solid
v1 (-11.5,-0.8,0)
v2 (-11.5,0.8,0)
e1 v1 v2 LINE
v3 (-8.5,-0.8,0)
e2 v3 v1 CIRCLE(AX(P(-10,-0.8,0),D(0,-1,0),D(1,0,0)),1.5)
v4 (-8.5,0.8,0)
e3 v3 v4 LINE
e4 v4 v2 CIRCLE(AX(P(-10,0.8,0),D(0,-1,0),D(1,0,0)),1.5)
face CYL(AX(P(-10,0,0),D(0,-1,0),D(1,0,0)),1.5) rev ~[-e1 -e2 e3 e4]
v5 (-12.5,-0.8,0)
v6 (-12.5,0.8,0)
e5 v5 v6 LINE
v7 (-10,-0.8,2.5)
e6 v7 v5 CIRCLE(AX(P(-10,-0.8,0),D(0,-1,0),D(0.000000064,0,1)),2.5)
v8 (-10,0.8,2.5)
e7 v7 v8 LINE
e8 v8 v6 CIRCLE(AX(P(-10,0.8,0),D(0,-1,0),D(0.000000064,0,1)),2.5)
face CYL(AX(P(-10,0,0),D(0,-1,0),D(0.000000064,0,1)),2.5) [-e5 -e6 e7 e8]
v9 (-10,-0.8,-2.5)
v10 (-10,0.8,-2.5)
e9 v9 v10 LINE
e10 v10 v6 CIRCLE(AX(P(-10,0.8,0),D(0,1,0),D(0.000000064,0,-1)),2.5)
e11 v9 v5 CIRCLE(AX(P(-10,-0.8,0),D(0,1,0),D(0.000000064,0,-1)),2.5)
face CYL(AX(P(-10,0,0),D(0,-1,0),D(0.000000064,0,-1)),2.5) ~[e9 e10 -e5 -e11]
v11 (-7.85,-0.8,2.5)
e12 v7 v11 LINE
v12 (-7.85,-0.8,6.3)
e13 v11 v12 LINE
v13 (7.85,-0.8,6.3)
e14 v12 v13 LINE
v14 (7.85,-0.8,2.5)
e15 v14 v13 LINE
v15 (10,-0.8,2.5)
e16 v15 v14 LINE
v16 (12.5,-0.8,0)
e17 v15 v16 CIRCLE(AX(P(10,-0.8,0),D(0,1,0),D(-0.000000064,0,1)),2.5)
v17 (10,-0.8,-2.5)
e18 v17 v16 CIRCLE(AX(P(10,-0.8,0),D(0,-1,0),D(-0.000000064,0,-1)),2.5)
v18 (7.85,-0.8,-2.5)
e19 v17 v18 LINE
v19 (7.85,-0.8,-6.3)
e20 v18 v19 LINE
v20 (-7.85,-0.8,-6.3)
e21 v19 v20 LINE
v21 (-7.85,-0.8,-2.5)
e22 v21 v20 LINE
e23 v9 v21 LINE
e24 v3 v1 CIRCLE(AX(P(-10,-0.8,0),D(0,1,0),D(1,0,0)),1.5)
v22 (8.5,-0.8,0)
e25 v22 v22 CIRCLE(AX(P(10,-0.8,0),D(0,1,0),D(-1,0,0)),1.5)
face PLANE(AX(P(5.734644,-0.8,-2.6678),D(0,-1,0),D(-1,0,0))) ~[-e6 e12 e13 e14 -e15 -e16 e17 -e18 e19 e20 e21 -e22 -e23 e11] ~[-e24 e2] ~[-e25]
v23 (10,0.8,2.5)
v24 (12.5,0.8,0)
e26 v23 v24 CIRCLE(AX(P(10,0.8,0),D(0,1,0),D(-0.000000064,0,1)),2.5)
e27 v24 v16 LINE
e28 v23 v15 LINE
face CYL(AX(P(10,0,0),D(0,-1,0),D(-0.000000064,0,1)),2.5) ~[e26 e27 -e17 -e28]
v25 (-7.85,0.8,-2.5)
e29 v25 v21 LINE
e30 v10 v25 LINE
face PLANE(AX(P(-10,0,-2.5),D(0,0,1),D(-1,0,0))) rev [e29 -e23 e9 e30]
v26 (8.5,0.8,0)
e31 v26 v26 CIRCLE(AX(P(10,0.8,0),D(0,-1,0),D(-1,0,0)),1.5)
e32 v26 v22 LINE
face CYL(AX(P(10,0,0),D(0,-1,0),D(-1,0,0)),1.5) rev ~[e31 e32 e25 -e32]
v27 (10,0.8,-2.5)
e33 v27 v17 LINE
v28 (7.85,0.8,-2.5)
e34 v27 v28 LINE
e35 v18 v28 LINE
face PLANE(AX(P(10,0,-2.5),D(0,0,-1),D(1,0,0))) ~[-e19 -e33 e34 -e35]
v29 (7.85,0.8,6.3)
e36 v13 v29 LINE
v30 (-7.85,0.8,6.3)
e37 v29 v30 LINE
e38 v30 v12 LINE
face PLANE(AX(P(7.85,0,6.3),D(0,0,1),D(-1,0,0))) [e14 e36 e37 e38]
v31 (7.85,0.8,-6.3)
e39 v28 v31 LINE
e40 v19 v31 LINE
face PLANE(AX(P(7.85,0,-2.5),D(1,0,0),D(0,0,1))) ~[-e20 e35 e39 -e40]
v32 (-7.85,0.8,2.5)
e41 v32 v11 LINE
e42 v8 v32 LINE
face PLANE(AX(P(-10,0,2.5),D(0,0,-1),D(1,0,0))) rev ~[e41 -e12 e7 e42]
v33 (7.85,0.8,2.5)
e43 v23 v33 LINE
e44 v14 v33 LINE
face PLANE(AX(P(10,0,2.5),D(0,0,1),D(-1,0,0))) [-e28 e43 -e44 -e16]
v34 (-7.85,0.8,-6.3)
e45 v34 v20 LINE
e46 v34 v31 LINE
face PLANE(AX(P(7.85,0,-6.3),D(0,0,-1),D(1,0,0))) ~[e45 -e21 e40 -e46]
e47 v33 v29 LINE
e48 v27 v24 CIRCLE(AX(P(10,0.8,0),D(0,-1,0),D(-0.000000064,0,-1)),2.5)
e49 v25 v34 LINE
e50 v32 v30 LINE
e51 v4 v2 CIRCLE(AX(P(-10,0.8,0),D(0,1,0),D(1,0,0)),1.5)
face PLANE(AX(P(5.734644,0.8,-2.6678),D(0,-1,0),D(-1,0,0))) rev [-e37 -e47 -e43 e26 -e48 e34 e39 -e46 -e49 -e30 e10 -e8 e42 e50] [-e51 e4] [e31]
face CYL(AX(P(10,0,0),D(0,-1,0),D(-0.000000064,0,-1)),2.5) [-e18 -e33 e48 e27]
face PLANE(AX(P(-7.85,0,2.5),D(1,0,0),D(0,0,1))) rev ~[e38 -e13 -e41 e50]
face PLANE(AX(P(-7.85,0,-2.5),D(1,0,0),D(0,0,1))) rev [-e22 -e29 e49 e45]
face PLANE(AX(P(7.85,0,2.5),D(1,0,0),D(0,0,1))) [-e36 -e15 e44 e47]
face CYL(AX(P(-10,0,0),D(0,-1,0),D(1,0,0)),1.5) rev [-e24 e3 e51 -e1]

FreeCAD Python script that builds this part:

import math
import FreeCAD as App
import Part
import Sketcher
from FreeCAD import Vector
Q = App.Units.Quantity

doc = App.newDocument("Part")
body = doc.addObject("PartDesign::Body", "Body")

# Sketch on XZ plane
sketch1 = body.newObject("Sketcher::SketchObject", "Sketch")
sketch1.AttachmentSupport = (doc.getObject("XZ_Plane"), [""])
sketch1.MapMode = "FlatFace"
sketch1.addGeometry([
    Part.LineSegment(Vector(0, 0, 0), Vector(0, 6.3, 0)),  # 0
    Part.LineSegment(Vector(0, 6.3, 0), Vector(-7.8, 6.3, 0)),  # 1
    Part.LineSegment(Vector(-7.8, 6.3, 0), Vector(-7.8, 2.5, 0)),  # 2
    Part.LineSegment(Vector(-7.8, 2.5, 0), Vector(-10, 2.5, 0)),  # 3
    Part.ArcOfCircle(Part.Circle(Vector(-10, 0, 0), Vector(0, 0, 1), 2.5), math.radians(90), math.radians(180)),  # 4
    Part.LineSegment(Vector(-12.5, 0, 0), Vector(-11.5, 0, 0)),  # 5
    Part.ArcOfCircle(Part.Circle(Vector(-10, 0, 0), Vector(0, 0, 1), 1.5), math.radians(0), math.radians(180)),  # 6
    Part.LineSegment(Vector(-8.5, 0, 0), Vector(0, 0, 0)),  # 7
], False)
sketch1.addConstraint([
    Sketcher.Constraint("Coincident", 0, 2, 1, 1),
    Sketcher.Constraint("Coincident", 1, 2, 2, 1),
    Sketcher.Constraint("Coincident", 2, 2, 3, 1),
    Sketcher.Constraint("Tangent", 3, 2, 4, 1),
    Sketcher.Constraint("Coincident", 4, 2, 5, 1),
    Sketcher.Constraint("Coincident", 5, 2, 6, 2),
    Sketcher.Constraint("Coincident", 6, 1, 7, 1),
    Sketcher.Constraint("Coincident", 7, 2, 0, 1),
    Sketcher.Constraint("Vertical", 0),
    Sketcher.Constraint("Horizontal", 1),
    Sketcher.Constraint("Vertical", 2),
    Sketcher.Constraint("Horizontal", 3),
    Sketcher.Constraint("Horizontal", 5),
    Sketcher.Constraint("Horizontal", 7),
    Sketcher.Constraint("Coincident", 7, 2, -1, 1),
    Sketcher.Constraint("Coincident", 6, 3, 4, 3),
    Sketcher.Constraint("PointOnObject", 4, 3, -1),
    Sketcher.Constraint("PointOnObject", 4, 2, -1),
    Sketcher.Constraint("Radius", 4, Q("2.5 mm")),
    Sketcher.Constraint("Radius", 6, Q("1.5 mm")),
    Sketcher.Constraint("DistanceX", 7, 1, 7, 2, Q("8.5 mm")),
    Sketcher.Constraint("DistanceY", 0, 1, 0, 2, Q("6.3 mm")),
    Sketcher.Constraint("DistanceX", 1, 2, 1, 1, Q("7.85 mm")),
])
pad1 = body.newObject("PartDesign::Pad", "Pad")
pad1.Profile = sketch1
pad1.Length = 1.6
pad1.Midplane = True

# Sketch on XZ plane
sketch2 = body.newObject("Sketcher::SketchObject", "Sketch001")
sketch2.AttachmentSupport = (doc.getObject("XZ_Plane"), [""])
sketch2.MapMode = "FlatFace"
sketch2.addGeometry([
    Part.LineSegment(Vector(0, 0, 0), Vector(0, 6.3, 0)),  # 0
    Part.LineSegment(Vector(0, 6.3, 0), Vector(7.8, 6.3, 0)),  # 1
    Part.LineSegment(Vector(7.8, 6.3, 0), Vector(7.8, 2.5, 0)),  # 2
    Part.LineSegment(Vector(7.8, 2.5, 0), Vector(10, 2.5, 0)),  # 3
    Part.ArcOfCircle(Part.Circle(Vector(10, 0, 0), Vector(0, 0, 1), 2.5), math.radians(0), math.radians(90)),  # 4
    Part.LineSegment(Vector(12.5, 0, 0), Vector(11.5, 0, 0)),  # 5
    Part.ArcOfCircle(Part.Circle(Vector(10, 0, 0), Vector(0, 0, 1), 1.5), math.radians(0), math.radians(180)),  # 6
    Part.LineSegment(Vector(8.5, 0, 0), Vector(0, 0, 0)),  # 7
], False)
sketch2.addConstraint([
    Sketcher.Constraint("Coincident", 0, 2, 1, 1),
    Sketcher.Constraint("Coincident", 1, 2, 2, 1),
    Sketcher.Constraint("Coincident", 2, 2, 3, 1),
    Sketcher.Constraint("Tangent", 3, 2, 4, 2),
    Sketcher.Constraint("Coincident", 4, 1, 5, 1),
    Sketcher.Constraint("Coincident", 5, 2, 6, 1),
    Sketcher.Constraint("Coincident", 6, 2, 7, 1),
    Sketcher.Constraint("Coincident", 7, 2, 0, 1),
    Sketcher.Constraint("Vertical", 0),
    Sketcher.Constraint("Horizontal", 1),
    Sketcher.Constraint("Vertical", 2),
    Sketcher.Constraint("Horizontal", 3),
    Sketcher.Constraint("Horizontal", 5),
    Sketcher.Constraint("Horizontal", 7),
    Sketcher.Constraint("Coincident", 7, 2, -1, 1),
    Sketcher.Constraint("Coincident", 6, 3, 4, 3),
    Sketcher.Constraint("PointOnObject", 4, 3, -1),
    Sketcher.Constraint("PointOnObject", 4, 1, -1),
    Sketcher.Constraint("Radius", 4, Q("2.5 mm")),
    Sketcher.Constraint("Radius", 6, Q("1.5 mm")),
    Sketcher.Constraint("DistanceX", 7, 2, 7, 1, Q("8.5 mm")),
    Sketcher.Constraint("DistanceY", 0, 1, 0, 2, Q("6.3 mm")),
    Sketcher.Constraint("DistanceX", 1, 1, 1, 2, Q("7.85 mm")),
])
pad2 = body.newObject("PartDesign::Pad", "Pad001")
pad2.Profile = sketch2
pad2.Length = 1.6
pad2.Midplane = True
doc.recompute()

mirrored = body.newObject("PartDesign::Mirrored", "Mirrored")
mirrored.Originals = [pad1, pad2]
mirrored.MirrorPlane = (doc.getObject("XY_Plane"), [""])
body.Tip = mirrored

doc.recompute()
